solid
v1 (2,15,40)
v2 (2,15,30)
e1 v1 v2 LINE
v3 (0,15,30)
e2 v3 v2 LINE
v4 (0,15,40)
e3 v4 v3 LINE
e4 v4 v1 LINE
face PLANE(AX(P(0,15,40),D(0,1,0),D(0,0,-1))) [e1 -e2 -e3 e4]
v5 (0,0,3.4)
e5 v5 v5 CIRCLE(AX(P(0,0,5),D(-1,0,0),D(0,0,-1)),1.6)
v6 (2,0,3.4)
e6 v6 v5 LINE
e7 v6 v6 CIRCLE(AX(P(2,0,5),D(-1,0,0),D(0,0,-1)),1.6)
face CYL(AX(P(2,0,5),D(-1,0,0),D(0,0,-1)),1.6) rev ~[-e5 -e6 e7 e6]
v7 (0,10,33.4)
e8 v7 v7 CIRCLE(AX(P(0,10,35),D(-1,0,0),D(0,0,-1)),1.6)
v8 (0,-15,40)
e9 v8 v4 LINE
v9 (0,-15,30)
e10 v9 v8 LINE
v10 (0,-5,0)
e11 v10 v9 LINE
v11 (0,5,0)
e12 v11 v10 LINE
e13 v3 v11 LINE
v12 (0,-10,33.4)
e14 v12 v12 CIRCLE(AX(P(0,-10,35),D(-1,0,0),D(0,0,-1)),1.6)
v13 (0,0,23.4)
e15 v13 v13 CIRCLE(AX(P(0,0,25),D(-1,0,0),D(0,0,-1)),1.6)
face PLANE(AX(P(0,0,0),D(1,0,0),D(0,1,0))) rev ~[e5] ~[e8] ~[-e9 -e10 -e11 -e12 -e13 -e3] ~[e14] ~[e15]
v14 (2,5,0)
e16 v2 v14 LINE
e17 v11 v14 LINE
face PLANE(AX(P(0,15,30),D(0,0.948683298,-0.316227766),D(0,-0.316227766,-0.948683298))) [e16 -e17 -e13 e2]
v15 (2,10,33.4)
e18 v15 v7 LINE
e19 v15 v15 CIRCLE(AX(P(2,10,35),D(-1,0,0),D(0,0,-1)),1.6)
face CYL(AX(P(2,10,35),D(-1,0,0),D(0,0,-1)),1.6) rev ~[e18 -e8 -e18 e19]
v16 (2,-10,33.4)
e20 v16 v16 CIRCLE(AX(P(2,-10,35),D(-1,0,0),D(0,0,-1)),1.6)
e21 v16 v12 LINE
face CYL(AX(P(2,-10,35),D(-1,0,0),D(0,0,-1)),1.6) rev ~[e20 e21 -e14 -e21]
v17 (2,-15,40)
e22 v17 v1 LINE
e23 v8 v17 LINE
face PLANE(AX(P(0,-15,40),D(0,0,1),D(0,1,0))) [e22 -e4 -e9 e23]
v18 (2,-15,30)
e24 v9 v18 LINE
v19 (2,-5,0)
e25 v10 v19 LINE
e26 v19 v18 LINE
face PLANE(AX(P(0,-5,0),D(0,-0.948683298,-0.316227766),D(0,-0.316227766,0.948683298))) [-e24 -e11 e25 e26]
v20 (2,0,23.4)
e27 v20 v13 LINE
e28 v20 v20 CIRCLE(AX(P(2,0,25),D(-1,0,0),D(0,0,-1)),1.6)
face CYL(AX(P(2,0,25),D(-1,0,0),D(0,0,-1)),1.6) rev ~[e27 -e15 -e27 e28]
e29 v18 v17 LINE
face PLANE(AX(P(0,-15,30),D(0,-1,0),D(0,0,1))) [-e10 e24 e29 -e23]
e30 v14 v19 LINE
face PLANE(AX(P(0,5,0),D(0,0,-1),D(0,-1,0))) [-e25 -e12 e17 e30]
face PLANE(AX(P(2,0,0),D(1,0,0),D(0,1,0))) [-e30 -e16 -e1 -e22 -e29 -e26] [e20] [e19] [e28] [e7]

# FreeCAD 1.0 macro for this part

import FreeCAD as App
import Part
import Sketcher
Q = App.Units.Quantity


def add_polygon(sketch, points):
    """Adds a closed chain of lines whose ends are joined by coincident constraints."""
    first, n = sketch.GeometryCount, len(points)
    for a, b in zip(points, points[1:] + points[:1]):
        sketch.addGeometry(Part.LineSegment(App.Vector(*a, 0), App.Vector(*b, 0)), False)
    for i in range(n):
        sketch.addConstraint(Sketcher.Constraint("Coincident", first + i, 2, first + (i + 1) % n, 1))

doc = App.newDocument("Part")
body = doc.addObject("PartDesign::Body", "Body")

sketch1 = body.newObject("Sketcher::SketchObject", "Sketch")
sketch1.AttachmentSupport = (doc.getObject("YZ_Plane"), [""])
sketch1.MapMode = "FlatFace"
add_polygon(sketch1, [(-15, 40), (-15, 30), (-5, 0), (5, 0), (15, 30), (15, 40)])
sketch1.addConstraint(Sketcher.Constraint("Vertical", 0))
sketch1.addConstraint(Sketcher.Constraint("Horizontal", 2))
sketch1.addConstraint(Sketcher.Constraint("Vertical", 4))
sketch1.addConstraint(Sketcher.Constraint("Horizontal", 5))
sketch1.addConstraint(Sketcher.Constraint("Symmetric", 1, 2, 2, 2, -1, 1))
sketch1.addConstraint(Sketcher.Constraint("Symmetric", 0, 2, 3, 2, -2))
sketch1.addConstraint(Sketcher.Constraint("Equal", 2, 0))
sketch1.addConstraint(Sketcher.Constraint("DistanceX", 2, 1, 2, 2, Q("10 mm")))
sketch1.addConstraint(Sketcher.Constraint("DistanceX", 5, 2, 5, 1, Q("30 mm")))
sketch1.addConstraint(Sketcher.Constraint("DistanceY", -1, 1, 0, 2, Q("30 mm")))
pad1 = body.newObject("PartDesign::Pad", "Pad")
pad1.Profile = sketch1
pad1.Length = 2

sketch2 = body.newObject("Sketcher::SketchObject", "Sketch001")
sketch2.AttachmentSupport = (doc.getObject("YZ_Plane"), [""])
sketch2.MapMode = "FlatFace"
sketch2.AttachmentOffset = App.Placement(App.Vector(0, 0, 2), App.Rotation())
sketch2.addGeometry(Part.Circle(App.Vector(10, 35, 0), App.Vector(0, 0, 1), 1.6), False)
sketch2.addGeometry(Part.Circle(App.Vector(-10, 35, 0), App.Vector(0, 0, 1), 1.6), False)
sketch2.addGeometry(Part.Circle(App.Vector(0, 25, 0), App.Vector(0, 0, 1), 1.6), False)
sketch2.addGeometry(Part.Circle(App.Vector(0, 5, 0), App.Vector(0, 0, 1), 1.6), False)
sketch2.addConstraint(Sketcher.Constraint("Equal", 0, 1))
sketch2.addConstraint(Sketcher.Constraint("Equal", 1, 2))
sketch2.addConstraint(Sketcher.Constraint("Equal", 2, 3))
sketch2.addConstraint(Sketcher.Constraint("Symmetric", 0, 3, 1, 3, -2))
sketch2.addConstraint(Sketcher.Constraint("PointOnObject", 2, 3, -2))
sketch2.addConstraint(Sketcher.Constraint("PointOnObject", 3, 3, -2))
sketch2.addConstraint(Sketcher.Constraint("Diameter", 0, Q("3.2 mm")))
sketch2.addConstraint(Sketcher.Constraint("DistanceX", -1, 1, 0, 3, Q("10 mm")))
sketch2.addConstraint(Sketcher.Constraint("DistanceY", -1, 1, 0, 3, Q("35 mm")))
sketch2.addConstraint(Sketcher.Constraint("DistanceY", -1, 1, 2, 3, Q("25 mm")))
sketch2.addConstraint(Sketcher.Constraint("DistanceY", -1, 1, 3, 3, Q("5 mm")))
doc.recompute()
hole = body.newObject("PartDesign::Hole", "Hole")
hole.Profile = sketch2
hole.ThreadType = "None"
hole.Diameter = 3.2
hole.DepthType = "ThroughAll"

doc.recompute()
